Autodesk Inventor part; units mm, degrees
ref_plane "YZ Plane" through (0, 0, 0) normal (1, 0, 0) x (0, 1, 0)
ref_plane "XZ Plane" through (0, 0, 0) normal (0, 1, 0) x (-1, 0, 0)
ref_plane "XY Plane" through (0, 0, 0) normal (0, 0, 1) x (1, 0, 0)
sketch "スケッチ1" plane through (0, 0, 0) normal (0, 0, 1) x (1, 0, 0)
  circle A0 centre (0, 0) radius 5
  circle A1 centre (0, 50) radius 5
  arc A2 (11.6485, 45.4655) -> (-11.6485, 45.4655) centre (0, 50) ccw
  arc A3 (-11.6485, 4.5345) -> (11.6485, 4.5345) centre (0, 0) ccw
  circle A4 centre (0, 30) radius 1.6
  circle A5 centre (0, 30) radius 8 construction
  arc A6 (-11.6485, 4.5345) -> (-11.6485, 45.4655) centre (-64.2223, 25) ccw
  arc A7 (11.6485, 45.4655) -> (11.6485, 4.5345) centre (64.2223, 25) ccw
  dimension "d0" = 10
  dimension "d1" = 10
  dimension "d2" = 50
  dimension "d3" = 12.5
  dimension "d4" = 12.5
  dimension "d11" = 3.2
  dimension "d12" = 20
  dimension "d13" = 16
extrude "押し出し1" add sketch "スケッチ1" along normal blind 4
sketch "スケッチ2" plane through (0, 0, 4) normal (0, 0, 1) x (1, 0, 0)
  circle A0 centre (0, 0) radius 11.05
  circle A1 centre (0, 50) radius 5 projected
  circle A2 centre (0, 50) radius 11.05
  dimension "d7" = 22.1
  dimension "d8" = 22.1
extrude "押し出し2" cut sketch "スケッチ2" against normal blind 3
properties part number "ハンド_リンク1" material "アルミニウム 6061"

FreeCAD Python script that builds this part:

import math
import FreeCAD as App
import Part
import Sketcher

V = App.Vector

doc = App.newDocument("Part")
body = doc.addObject("PartDesign::Body", "Body")

# Sketch on XY plane
sketch1 = body.newObject("Sketcher::SketchObject", "Sketch")
sketch1.AttachmentSupport = (doc.getObject("XY_Plane"), [""])
sketch1.MapMode = "FlatFace"
sketch1.addGeometry(Part.ArcOfCircle(Part.Circle(V(64.2, 25, 0), V(0, 0, 1), 56.4), math.radians(159), math.radians(201)), False)
sketch1.addGeometry(Part.ArcOfCircle(Part.Circle(V(0, 50, 0), V(0, 0, 1), 12.5), math.radians(-21), math.radians(201)), False)
sketch1.addGeometry(Part.ArcOfCircle(Part.Circle(V(-64.2, 25, 0), V(0, 0, 1), 56.4), math.radians(-21), math.radians(21)), False)
sketch1.addGeometry(Part.ArcOfCircle(Part.Circle(V(0, 0, 0), V(0, 0, 1), 12.5), math.radians(159), math.radians(381)), False)
sketch1.addGeometry(Part.Circle(V(0, 0, 0), V(0, 0, 1), 5), False)
sketch1.addGeometry(Part.Circle(V(0, 30, 0), V(0, 0, 1), 1.6), False)
sketch1.addGeometry(Part.Circle(V(0, 50, 0), V(0, 0, 1), 5), False)
sketch1.addConstraint(Sketcher.Constraint("Tangent", 0, 1, 1, 1))
sketch1.addConstraint(Sketcher.Constraint("Tangent", 1, 2, 2, 2))
sketch1.addConstraint(Sketcher.Constraint("Tangent", 2, 1, 3, 1))
sketch1.addConstraint(Sketcher.Constraint("Tangent", 3, 2, 0, 2))
sketch1.addConstraint(Sketcher.Constraint("Coincident", 3, 3, -1, 1))
sketch1.addConstraint(Sketcher.Constraint("Coincident", 4, 3, -1, 1))
sketch1.addConstraint(Sketcher.Constraint("Coincident", 6, 3, 1, 3))
sketch1.addConstraint(Sketcher.Constraint("Equal", 0, 2))
sketch1.addConstraint(Sketcher.Constraint("Equal", 1, 3))
sketch1.addConstraint(Sketcher.Constraint("Equal", 4, 6))
sketch1.addConstraint(Sketcher.Constraint("PointOnObject", 1, 3, -2))
sketch1.addConstraint(Sketcher.Constraint("PointOnObject", 5, 3, -2))
sketch1.addConstraint(Sketcher.Constraint("Diameter", 4, 10.0))
sketch1.addConstraint(Sketcher.Constraint("Diameter", 5, 3.2))
sketch1.addConstraint(Sketcher.Constraint("Radius", 1, 12.5))
sketch1.addConstraint(Sketcher.Constraint("DistanceY", -1, 1, 1, 3, 50.0))
sketch1.addConstraint(Sketcher.Constraint("DistanceY", 5, 3, 1, 3, 20.0))
sketch1.addConstraint(Sketcher.Constraint("Radius", 0, 56.4167))
pad1 = body.newObject("PartDesign::Pad", "Pad")
pad1.Profile = sketch1
pad1.Length = 4

# Sketch on XY plane
sketch2 = body.newObject("Sketcher::SketchObject", "Sketch001")
sketch2.AttachmentSupport = (doc.getObject("XY_Plane"), [""])
sketch2.MapMode = "FlatFace"
sketch2.AttachmentOffset = App.Placement(V(0, 0, 4), App.Rotation())
sketch2.addGeometry(Part.Circle(V(0, 0, 0), V(0, 0, 1), 11), False)
sketch2.addGeometry(Part.Circle(V(0, 50, 0), V(0, 0, 1), 11), False)
sketch2.addGeometry(Part.Circle(V(0, 50, 0), V(0, 0, 1), 5), False)
sketch2.addConstraint(Sketcher.Constraint("Coincident", 0, 3, -1, 1))
sketch2.addConstraint(Sketcher.Constraint("Coincident", 2, 3, 1, 3))
sketch2.addConstraint(Sketcher.Constraint("Equal", 0, 1))
sketch2.addConstraint(Sketcher.Constraint("PointOnObject", 1, 3, -2))
sketch2.addConstraint(Sketcher.Constraint("Diameter", 0, 22.1))
sketch2.addConstraint(Sketcher.Constraint("Diameter", 2, 10.0))
sketch2.addConstraint(Sketcher.Constraint("DistanceY", -1, 1, 1, 3, 50.0))
pocket1 = body.newObject("PartDesign::Pocket", "Pocket")
pocket1.Profile = sketch2
pocket1.Length = 3

doc.recompute()
